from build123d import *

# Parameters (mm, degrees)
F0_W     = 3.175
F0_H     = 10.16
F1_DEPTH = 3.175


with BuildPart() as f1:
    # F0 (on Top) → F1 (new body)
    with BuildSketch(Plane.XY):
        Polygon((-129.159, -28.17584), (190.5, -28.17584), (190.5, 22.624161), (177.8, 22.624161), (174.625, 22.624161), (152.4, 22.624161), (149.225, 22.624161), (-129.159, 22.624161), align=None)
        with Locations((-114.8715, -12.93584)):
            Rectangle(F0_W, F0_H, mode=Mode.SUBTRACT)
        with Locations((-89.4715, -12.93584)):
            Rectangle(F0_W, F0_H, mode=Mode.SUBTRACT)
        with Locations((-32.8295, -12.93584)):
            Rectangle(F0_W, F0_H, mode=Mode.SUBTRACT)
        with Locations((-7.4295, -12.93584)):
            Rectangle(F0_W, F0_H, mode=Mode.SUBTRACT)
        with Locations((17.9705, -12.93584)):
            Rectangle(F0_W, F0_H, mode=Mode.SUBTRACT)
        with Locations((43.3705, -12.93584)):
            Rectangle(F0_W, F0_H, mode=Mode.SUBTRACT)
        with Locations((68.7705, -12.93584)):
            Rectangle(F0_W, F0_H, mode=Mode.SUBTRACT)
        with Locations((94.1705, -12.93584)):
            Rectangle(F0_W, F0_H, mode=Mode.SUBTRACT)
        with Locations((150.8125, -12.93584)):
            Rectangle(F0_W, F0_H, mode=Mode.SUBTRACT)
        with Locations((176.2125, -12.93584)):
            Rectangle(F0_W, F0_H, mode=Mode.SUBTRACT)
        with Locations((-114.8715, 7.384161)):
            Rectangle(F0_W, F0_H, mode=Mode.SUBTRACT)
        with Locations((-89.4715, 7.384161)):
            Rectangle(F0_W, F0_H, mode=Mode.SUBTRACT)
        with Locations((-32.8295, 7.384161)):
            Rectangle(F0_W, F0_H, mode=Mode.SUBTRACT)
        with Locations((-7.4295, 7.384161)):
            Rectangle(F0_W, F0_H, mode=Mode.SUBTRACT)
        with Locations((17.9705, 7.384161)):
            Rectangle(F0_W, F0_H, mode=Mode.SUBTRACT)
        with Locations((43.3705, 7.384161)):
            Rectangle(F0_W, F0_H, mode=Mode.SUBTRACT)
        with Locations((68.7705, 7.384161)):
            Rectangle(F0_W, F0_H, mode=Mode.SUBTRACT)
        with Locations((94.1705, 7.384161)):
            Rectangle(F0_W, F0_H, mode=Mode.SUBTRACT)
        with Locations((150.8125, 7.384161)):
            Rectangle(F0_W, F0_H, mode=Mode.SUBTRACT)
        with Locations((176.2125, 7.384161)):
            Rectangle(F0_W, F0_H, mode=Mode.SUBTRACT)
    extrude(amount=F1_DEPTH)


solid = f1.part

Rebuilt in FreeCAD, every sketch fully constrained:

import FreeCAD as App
import Part
import Sketcher
Q = App.Units.Quantity


def add_polygon(sketch, points):
    """Adds a closed chain of lines whose ends are joined by coincident constraints."""
    first, n = sketch.GeometryCount, len(points)
    for a, b in zip(points, points[1:] + points[:1]):
        sketch.addGeometry(Part.LineSegment(App.Vector(*a, 0), App.Vector(*b, 0)), False)
    for i in range(n):
        sketch.addConstraint(Sketcher.Constraint("Coincident", first + i, 2, first + (i + 1) % n, 1))

doc = App.newDocument("Part")
body = doc.addObject("PartDesign::Body", "Body")

sketch1 = body.newObject("Sketcher::SketchObject", "Sketch")
sketch1.AttachmentSupport = (doc.getObject("XY_Plane"), [""])
sketch1.MapMode = "FlatFace"
add_polygon(sketch1, [(-129.2, -28.2), (190.5, -28.2), (190.5, 22.6), (-129.2, 22.6)])
add_polygon(sketch1, [(-113.3, -18), (-116.5, -18), (-116.5, -7.9), (-113.3, -7.9)])
add_polygon(sketch1, [(-87.9, -18), (-91.1, -18), (-91.1, -7.9), (-87.9, -7.9)])
add_polygon(sketch1, [(-31.2, -18), (-34.4, -18), (-34.4, -7.9), (-31.2, -7.9)])
add_polygon(sketch1, [(-5.8, -18), (-9, -18), (-9, -7.9), (-5.8, -7.9)])
add_polygon(sketch1, [(19.6, -18), (16.4, -18), (16.4, -7.9), (19.6, -7.9)])
add_polygon(sketch1, [(45, -18), (41.8, -18), (41.8, -7.9), (45, -7.9)])
add_polygon(sketch1, [(70.4, -18), (67.2, -18), (67.2, -7.9), (70.4, -7.9)])
add_polygon(sketch1, [(95.8, -18), (92.6, -18), (92.6, -7.9), (95.8, -7.9)])
add_polygon(sketch1, [(152.4, -18), (149.2, -18), (149.2, -7.9), (152.4, -7.9)])
add_polygon(sketch1, [(177.8, -18), (174.6, -18), (174.6, -7.9), (177.8, -7.9)])
add_polygon(sketch1, [(-113.3, 2.3), (-116.5, 2.3), (-116.5, 12.5), (-113.3, 12.5)])
add_polygon(sketch1, [(-87.9, 2.3), (-91.1, 2.3), (-91.1, 12.5), (-87.9, 12.5)])
add_polygon(sketch1, [(-31.2, 2.3), (-34.4, 2.3), (-34.4, 12.5), (-31.2, 12.5)])
add_polygon(sketch1, [(-5.8, 2.3), (-9, 2.3), (-9, 12.5), (-5.8, 12.5)])
add_polygon(sketch1, [(19.6, 2.3), (16.4, 2.3), (16.4, 12.5), (19.6, 12.5)])
add_polygon(sketch1, [(45, 2.3), (41.8, 2.3), (41.8, 12.5), (45, 12.5)])
add_polygon(sketch1, [(70.4, 2.3), (67.2, 2.3), (67.2, 12.5), (70.4, 12.5)])
add_polygon(sketch1, [(95.8, 2.3), (92.6, 2.3), (92.6, 12.5), (95.8, 12.5)])
add_polygon(sketch1, [(152.4, 2.3), (149.2, 2.3), (149.2, 12.5), (152.4, 12.5)])
add_polygon(sketch1, [(177.8, 2.3), (174.6, 2.3), (174.6, 12.5), (177.8, 12.5)])
sketch1.addConstraint([
    Sketcher.Constraint("Horizontal", 0),
    Sketcher.Constraint("Vertical", 1),
    Sketcher.Constraint("Horizontal", 2),
    Sketcher.Constraint("Vertical", 3),
    Sketcher.Constraint("Horizontal", 4),
    Sketcher.Constraint("Vertical", 5),
    Sketcher.Constraint("Horizontal", 6),
    Sketcher.Constraint("Vertical", 7),
    Sketcher.Constraint("Horizontal", 8),
    Sketcher.Constraint("Vertical", 9),
    Sketcher.Constraint("Horizontal", 10),
    Sketcher.Constraint("Vertical", 11),
    Sketcher.Constraint("Horizontal", 12),
    Sketcher.Constraint("Vertical", 13),
    Sketcher.Constraint("Horizontal", 14),
    Sketcher.Constraint("Vertical", 15),
    Sketcher.Constraint("Horizontal", 16),
    Sketcher.Constraint("Vertical", 17),
    Sketcher.Constraint("Horizontal", 18),
    Sketcher.Constraint("Vertical", 19),
    Sketcher.Constraint("Horizontal", 20),
    Sketcher.Constraint("Vertical", 21),
    Sketcher.Constraint("Horizontal", 22),
    Sketcher.Constraint("Vertical", 23),
    Sketcher.Constraint("Horizontal", 24),
    Sketcher.Constraint("Vertical", 25),
    Sketcher.Constraint("Horizontal", 26),
    Sketcher.Constraint("Vertical", 27),
    Sketcher.Constraint("Horizontal", 28),
    Sketcher.Constraint("Vertical", 29),
    Sketcher.Constraint("Horizontal", 30),
    Sketcher.Constraint("Vertical", 31),
    Sketcher.Constraint("Horizontal", 32),
    Sketcher.Constraint("Vertical", 33),
    Sketcher.Constraint("Horizontal", 34),
    Sketcher.Constraint("Vertical", 35),
    Sketcher.Constraint("Horizontal", 36),
    Sketcher.Constraint("Vertical", 37),
    Sketcher.Constraint("Horizontal", 38),
    Sketcher.Constraint("Vertical", 39),
    Sketcher.Constraint("Horizontal", 40),
    Sketcher.Constraint("Vertical", 41),
    Sketcher.Constraint("Horizontal", 42),
    Sketcher.Constraint("Vertical", 43),
    Sketcher.Constraint("Horizontal", 44),
    Sketcher.Constraint("Vertical", 45),
    Sketcher.Constraint("Horizontal", 46),
    Sketcher.Constraint("Vertical", 47),
    Sketcher.Constraint("Horizontal", 48),
    Sketcher.Constraint("Vertical", 49),
    Sketcher.Constraint("Horizontal", 50),
    Sketcher.Constraint("Vertical", 51),
    Sketcher.Constraint("Horizontal", 52),
    Sketcher.Constraint("Vertical", 53),
    Sketcher.Constraint("Horizontal", 54),
    Sketcher.Constraint("Vertical", 55),
    Sketcher.Constraint("Horizontal", 56),
    Sketcher.Constraint("Vertical", 57),
    Sketcher.Constraint("Horizontal", 58),
    Sketcher.Constraint("Vertical", 59),
    Sketcher.Constraint("Horizontal", 60),
    Sketcher.Constraint("Vertical", 61),
    Sketcher.Constraint("Horizontal", 62),
    Sketcher.Constraint("Vertical", 63),
    Sketcher.Constraint("Horizontal", 64),
    Sketcher.Constraint("Vertical", 65),
    Sketcher.Constraint("Horizontal", 66),
    Sketcher.Constraint("Vertical", 67),
    Sketcher.Constraint("Horizontal", 68),
    Sketcher.Constraint("Vertical", 69),
    Sketcher.Constraint("Horizontal", 70),
    Sketcher.Constraint("Vertical", 71),
    Sketcher.Constraint("Horizontal", 72),
    Sketcher.Constraint("Vertical", 73),
    Sketcher.Constraint("Horizontal", 74),
    Sketcher.Constraint("Vertical", 75),
    Sketcher.Constraint("Horizontal", 76),
    Sketcher.Constraint("Vertical", 77),
    Sketcher.Constraint("Horizontal", 78),
    Sketcher.Constraint("Vertical", 79),
    Sketcher.Constraint("Horizontal", 80),
    Sketcher.Constraint("Vertical", 81),
    Sketcher.Constraint("Horizontal", 82),
    Sketcher.Constraint("Vertical", 83),
    Sketcher.Constraint("Horizontal", 7, 2, 8, 2),
    Sketcher.Constraint("Horizontal", 6, 2, 9, 2),
    Sketcher.Constraint("Horizontal", 11, 2, 12, 2),
    Sketcher.Constraint("Horizontal", 10, 2, 13, 2),
    Sketcher.Constraint("Horizontal", 15, 2, 16, 2),
    Sketcher.Constraint("Horizontal", 14, 2, 17, 2),
    Sketcher.Constraint("Horizontal", 19, 2, 20, 2),
    Sketcher.Constraint("Horizontal", 18, 2, 21, 2),
    Sketcher.Constraint("Horizontal", 23, 2, 24, 2),
    Sketcher.Constraint("Horizontal", 22, 2, 25, 2),
    Sketcher.Constraint("Horizontal", 27, 2, 28, 2),
    Sketcher.Constraint("Horizontal", 26, 2, 29, 2),
    Sketcher.Constraint("Horizontal", 31, 2, 32, 2),
    Sketcher.Constraint("Horizontal", 30, 2, 33, 2),
    Sketcher.Constraint("Horizontal", 35, 2, 36, 2),
    Sketcher.Constraint("Horizontal", 34, 2, 37, 2),
    Sketcher.Constraint("Horizontal", 39, 2, 40, 2),
    Sketcher.Constraint("Horizontal", 38, 2, 41, 2),
    Sketcher.Constraint("Horizontal", 47, 2, 48, 2),
    Sketcher.Constraint("Horizontal", 46, 2, 49, 2),
    Sketcher.Constraint("Horizontal", 51, 2, 52, 2),
    Sketcher.Constraint("Horizontal", 50, 2, 53, 2),
    Sketcher.Constraint("Horizontal", 55, 2, 56, 2),
    Sketcher.Constraint("Horizontal", 54, 2, 57, 2),
    Sketcher.Constraint("Horizontal", 59, 2, 60, 2),
    Sketcher.Constraint("Horizontal", 58, 2, 61, 2),
    Sketcher.Constraint("Horizontal", 63, 2, 64, 2),
    Sketcher.Constraint("Horizontal", 62, 2, 65, 2),
    Sketcher.Constraint("Horizontal", 67, 2, 68, 2),
    Sketcher.Constraint("Horizontal", 66, 2, 69, 2),
    Sketcher.Constraint("Horizontal", 71, 2, 72, 2),
    Sketcher.Constraint("Horizontal", 70, 2, 73, 2),
    Sketcher.Constraint("Horizontal", 75, 2, 76, 2),
    Sketcher.Constraint("Horizontal", 74, 2, 77, 2),
    Sketcher.Constraint("Horizontal", 79, 2, 80, 2),
    Sketcher.Constraint("Horizontal", 78, 2, 81, 2),
    Sketcher.Constraint("Vertical", 5, 2, 44, 2),
    Sketcher.Constraint("Vertical", 7, 2, 46, 2),
    Sketcher.Constraint("Vertical", 9, 2, 48, 2),
    Sketcher.Constraint("Vertical", 11, 2, 50, 2),
    Sketcher.Constraint("Vertical", 13, 2, 52, 2),
    Sketcher.Constraint("Vertical", 15, 2, 54, 2),
    Sketcher.Constraint("Vertical", 17, 2, 56, 2),
    Sketcher.Constraint("Vertical", 19, 2, 58, 2),
    Sketcher.Constraint("Vertical", 21, 2, 60, 2),
    Sketcher.Constraint("Vertical", 23, 2, 62, 2),
    Sketcher.Constraint("Vertical", 25, 2, 64, 2),
    Sketcher.Constraint("Vertical", 27, 2, 66, 2),
    Sketcher.Constraint("Vertical", 29, 2, 68, 2),
    Sketcher.Constraint("Vertical", 31, 2, 70, 2),
    Sketcher.Constraint("Vertical", 33, 2, 72, 2),
    Sketcher.Constraint("Vertical", 35, 2, 74, 2),
    Sketcher.Constraint("Vertical", 37, 2, 76, 2),
    Sketcher.Constraint("Vertical", 39, 2, 78, 2),
    Sketcher.Constraint("Vertical", 41, 2, 80, 2),
    Sketcher.Constraint("Vertical", 43, 2, 82, 2),
    Sketcher.Constraint("Equal", 6, 8),
    Sketcher.Constraint("Equal", 10, 12),
    Sketcher.Constraint("Equal", 14, 16),
    Sketcher.Constraint("Equal", 18, 20),
    Sketcher.Constraint("Equal", 22, 24),
    Sketcher.Constraint("Equal", 26, 28),
    Sketcher.Constraint("Equal", 30, 32),
    Sketcher.Constraint("Equal", 34, 36),
    Sketcher.Constraint("Equal", 38, 40),
    Sketcher.Constraint("Equal", 43, 45),
    Sketcher.Constraint("DistanceY", 1, 1, 1, 2, Q("2 in")),
    Sketcher.Constraint("DistanceY", 5, 1, 5, 2, Q("0.4 in")),
    Sketcher.Constraint("DistanceX", -1, 1, 38, 2, Q("6 in")),
    Sketcher.Constraint("DistanceX", -1, 1, 42, 2, Q("7 in")),
    Sketcher.Constraint("DistanceX", -1, 1, 0, 2, Q("7.5 in")),
    Sketcher.Constraint("DistanceX", 0, 1, 0, 2, Q("12.585 in")),
    Sketcher.Constraint("DistanceX", 4, 2, 4, 1, Q("0.125 in")),
    Sketcher.Constraint("DistanceX", 6, 2, -1, 1, Q("4.46 in")),
    Sketcher.Constraint("DistanceX", 10, 2, -1, 1, Q("3.46 in")),
    Sketcher.Constraint("DistanceX", 14, 2, -1, 1, Q("1.23 in")),
    Sketcher.Constraint("DistanceX", 18, 2, -1, 1, Q("0.23 in")),
    Sketcher.Constraint("DistanceX", -1, 1, 22, 2, Q("0.77 in")),
    Sketcher.Constraint("DistanceX", -1, 1, 26, 2, Q("1.77 in")),
    Sketcher.Constraint("DistanceX", -1, 1, 30, 2, Q("2.77 in")),
    Sketcher.Constraint("DistanceX", -1, 1, 34, 2, Q("3.77 in")),
    Sketcher.Constraint("DistanceY", 0, 2, -1, 1, Q("28.17584 mm")),
    Sketcher.Constraint("DistanceY", 4, 2, -1, 1, Q("18.01584 mm")),
    Sketcher.Constraint("DistanceY", -1, 1, 44, 2, Q("2.304161 mm")),
])
pad1 = body.newObject("PartDesign::Pad", "Pad")
pad1.Profile = sketch1
pad1.Length = Q("0.125 in")

doc.recompute()
